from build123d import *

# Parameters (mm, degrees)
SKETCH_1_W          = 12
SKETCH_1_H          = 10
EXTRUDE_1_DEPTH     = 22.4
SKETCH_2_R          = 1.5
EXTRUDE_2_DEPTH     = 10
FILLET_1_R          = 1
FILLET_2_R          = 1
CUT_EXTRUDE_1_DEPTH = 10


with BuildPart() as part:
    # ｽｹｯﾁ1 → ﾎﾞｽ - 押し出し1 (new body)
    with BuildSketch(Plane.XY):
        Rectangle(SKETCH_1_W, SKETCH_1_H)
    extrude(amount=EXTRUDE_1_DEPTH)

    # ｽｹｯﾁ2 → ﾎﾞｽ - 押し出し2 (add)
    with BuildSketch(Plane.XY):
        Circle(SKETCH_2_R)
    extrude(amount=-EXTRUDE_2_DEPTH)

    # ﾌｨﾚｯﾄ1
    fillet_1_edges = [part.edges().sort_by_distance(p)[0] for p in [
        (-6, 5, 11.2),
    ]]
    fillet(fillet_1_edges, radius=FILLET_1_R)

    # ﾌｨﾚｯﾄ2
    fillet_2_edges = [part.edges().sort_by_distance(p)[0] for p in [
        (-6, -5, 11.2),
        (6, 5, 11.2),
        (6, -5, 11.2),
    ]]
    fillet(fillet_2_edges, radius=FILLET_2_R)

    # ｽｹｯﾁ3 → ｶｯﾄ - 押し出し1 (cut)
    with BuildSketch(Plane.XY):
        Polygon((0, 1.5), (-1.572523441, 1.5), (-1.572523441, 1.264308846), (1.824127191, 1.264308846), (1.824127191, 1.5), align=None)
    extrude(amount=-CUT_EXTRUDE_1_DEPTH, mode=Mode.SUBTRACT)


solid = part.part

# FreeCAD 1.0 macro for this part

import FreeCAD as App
import Part
import Sketcher
from FreeCAD import Vector


def edges_at(feature, points):
    """Names of the edges that pass closest to the given points."""
    edges = feature.Shape.Edges
    near = lambda p: min(range(len(edges)), key=lambda i: edges[i].distToShape(Part.Vertex(*p))[0])
    return sorted({f"Edge{near(p) + 1}" for p in points})

doc = App.newDocument("Part")
body = doc.addObject("PartDesign::Body", "Body")

sketch1 = doc.addObject("Sketcher::SketchObject", "Sketch")
body.addObject(sketch1)
sketch1.AttachmentSupport = (doc.XY_Plane, [""])
sketch1.MapMode = "FlatFace"
sketch1.addGeometry([
    Part.LineSegment(Vector(-6, 5, 0), Vector(-6, -5, 0)),
    Part.LineSegment(Vector(-6, -5, 0), Vector(6, -5, 0)),
    Part.LineSegment(Vector(6, -5, 0), Vector(6, 5, 0)),
    Part.LineSegment(Vector(6, 5, 0), Vector(-6, 5, 0)),
], False)
sketch1.addConstraint([
    Sketcher.Constraint("Coincident", 0, 2, 1, 1),
    Sketcher.Constraint("Coincident", 1, 2, 2, 1),
    Sketcher.Constraint("Coincident", 2, 2, 3, 1),
    Sketcher.Constraint("Coincident", 3, 2, 0, 1),
    Sketcher.Constraint("Vertical", 0),
    Sketcher.Constraint("Horizontal", 1),
    Sketcher.Constraint("Vertical", 2),
    Sketcher.Constraint("Horizontal", 3),
    Sketcher.Constraint("Symmetric", 0, 2, 2, 2, -1, 1),
    Sketcher.Constraint("DistanceX", 1, 1, 1, 2, 12.0),
    Sketcher.Constraint("DistanceY", 0, 2, 0, 1, 10.0),
])
pad1 = doc.addObject("PartDesign::Pad", "Pad")
body.addObject(pad1)
pad1.Profile = sketch1
pad1.Length = 22.4

sketch2 = doc.addObject("Sketcher::SketchObject", "Sketch001")
body.addObject(sketch2)
sketch2.AttachmentSupport = (doc.XY_Plane, [""])
sketch2.MapMode = "FlatFace"
sketch2.addGeometry(Part.Circle(Vector(0, 0, 0), Vector(0, 0, 1), 1.5), False)
sketch2.addConstraint([
    Sketcher.Constraint("Coincident", 0, 3, -1, 1),
    Sketcher.Constraint("Diameter", 0, 3.0),
])
pad2 = doc.addObject("PartDesign::Pad", "Pad001")
body.addObject(pad2)
pad2.Profile = sketch2
pad2.Length = 10
pad2.Reversed = True
doc.recompute()

fillet = doc.addObject("PartDesign::Fillet", "Fillet")
body.addObject(fillet)
fillet.Base = (pad2, edges_at(pad2, [(-6, 5, 11.2)]))
fillet.Radius = 1
doc.recompute()

fillet2 = doc.addObject("PartDesign::Fillet", "Fillet001")
body.addObject(fillet2)
fillet2.Base = (fillet, edges_at(fillet, [(-6, -5, 11.2), (6, 5, 11.2), (6, -5, 11.2)]))
fillet2.Radius = 1

sketch3 = doc.addObject("Sketcher::SketchObject", "Sketch002")
body.addObject(sketch3)
sketch3.AttachmentSupport = (doc.XY_Plane, [""])
sketch3.MapMode = "FlatFace"
sketch3.addGeometry([
    Part.LineSegment(Vector(-1.57, 1.5, 0), Vector(-1.57, 1.26, 0)),
    Part.LineSegment(Vector(-1.57, 1.26, 0), Vector(1.82, 1.26, 0)),
    Part.LineSegment(Vector(1.82, 1.26, 0), Vector(1.82, 1.5, 0)),
    Part.LineSegment(Vector(1.82, 1.5, 0), Vector(-1.57, 1.5, 0)),
], False)
sketch3.addConstraint([
    Sketcher.Constraint("Coincident", 0, 2, 1, 1),
    Sketcher.Constraint("Coincident", 1, 2, 2, 1),
    Sketcher.Constraint("Coincident", 2, 2, 3, 1),
    Sketcher.Constraint("Coincident", 3, 2, 0, 1),
    Sketcher.Constraint("Vertical", 0),
    Sketcher.Constraint("Horizontal", 1),
    Sketcher.Constraint("Vertical", 2),
    Sketcher.Constraint("Horizontal", 3),
    Sketcher.Constraint("DistanceY", -1, 1, 2, 2, 1.5),
    Sketcher.Constraint("DistanceX", 1, 1, 1, 2, 3.396651),
    Sketcher.Constraint("DistanceY", 0, 2, 0, 1, 0.235691),
    Sketcher.Constraint("DistanceX", 0, 2, -1, 1, 1.572523),
])
pocket1 = doc.addObject("PartDesign::Pocket", "Pocket")
body.addObject(pocket1)
pocket1.Profile = sketch3
pocket1.Length = 10

doc.recompute()
